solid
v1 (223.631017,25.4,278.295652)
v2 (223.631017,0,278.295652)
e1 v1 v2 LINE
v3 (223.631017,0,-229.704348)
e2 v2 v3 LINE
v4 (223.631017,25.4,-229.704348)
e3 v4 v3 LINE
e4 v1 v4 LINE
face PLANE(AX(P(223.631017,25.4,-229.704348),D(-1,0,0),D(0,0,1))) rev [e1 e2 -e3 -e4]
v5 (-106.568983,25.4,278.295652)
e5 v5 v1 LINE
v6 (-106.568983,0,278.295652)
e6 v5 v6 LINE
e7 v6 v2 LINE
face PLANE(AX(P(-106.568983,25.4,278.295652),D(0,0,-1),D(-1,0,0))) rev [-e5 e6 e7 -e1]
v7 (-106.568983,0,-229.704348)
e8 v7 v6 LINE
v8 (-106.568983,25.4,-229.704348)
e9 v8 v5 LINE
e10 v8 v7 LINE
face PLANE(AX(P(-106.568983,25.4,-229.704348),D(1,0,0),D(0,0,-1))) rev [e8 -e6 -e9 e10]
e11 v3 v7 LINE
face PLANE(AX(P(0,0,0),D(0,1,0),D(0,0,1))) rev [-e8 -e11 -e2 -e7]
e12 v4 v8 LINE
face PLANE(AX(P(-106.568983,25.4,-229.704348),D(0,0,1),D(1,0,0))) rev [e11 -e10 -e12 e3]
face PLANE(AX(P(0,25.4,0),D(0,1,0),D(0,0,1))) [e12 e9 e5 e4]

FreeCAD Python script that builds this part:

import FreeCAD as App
import Part
import Sketcher

V = App.Vector
Q = App.Units.Quantity

doc = App.newDocument("Part")
body = doc.addObject("PartDesign::Body", "Body")

# Sketch on XZ plane
sketch1 = body.newObject("Sketcher::SketchObject", "Sketch")
sketch1.AttachmentSupport = (doc.getObject("XZ_Plane"), [""])
sketch1.MapMode = "FlatFace"
sketch1.addGeometry([
    Part.LineSegment(V(-107, -230, 0), V(-107, 278, 0)),
    Part.LineSegment(V(-107, 278, 0), V(224, 278, 0)),
    Part.LineSegment(V(224, 278, 0), V(224, -230, 0)),
    Part.LineSegment(V(224, -230, 0), V(-107, -230, 0)),
], False)
sketch1.addConstraint([
    Sketcher.Constraint("Coincident", 0, 2, 1, 1),
    Sketcher.Constraint("Coincident", 1, 2, 2, 1),
    Sketcher.Constraint("Coincident", 2, 2, 3, 1),
    Sketcher.Constraint("Coincident", 3, 2, 0, 1),
    Sketcher.Constraint("Vertical", 0),
    Sketcher.Constraint("Horizontal", 1),
    Sketcher.Constraint("Vertical", 2),
    Sketcher.Constraint("Horizontal", 3),
    Sketcher.Constraint("DistanceX", 1, 1, 1, 2, Q("13 in")),
    Sketcher.Constraint("DistanceY", 0, 1, 0, 2, Q("20 in")),
    Sketcher.Constraint("DistanceX", 0, 2, -1, 1, 106.568983),
    Sketcher.Constraint("DistanceY", -1, 1, 0, 2, 278.295652),
])
pad1 = body.newObject("PartDesign::Pad", "Pad")
pad1.Profile = sketch1
pad1.Length = Q("1 in")
pad1.Reversed = True

doc.recompute()
